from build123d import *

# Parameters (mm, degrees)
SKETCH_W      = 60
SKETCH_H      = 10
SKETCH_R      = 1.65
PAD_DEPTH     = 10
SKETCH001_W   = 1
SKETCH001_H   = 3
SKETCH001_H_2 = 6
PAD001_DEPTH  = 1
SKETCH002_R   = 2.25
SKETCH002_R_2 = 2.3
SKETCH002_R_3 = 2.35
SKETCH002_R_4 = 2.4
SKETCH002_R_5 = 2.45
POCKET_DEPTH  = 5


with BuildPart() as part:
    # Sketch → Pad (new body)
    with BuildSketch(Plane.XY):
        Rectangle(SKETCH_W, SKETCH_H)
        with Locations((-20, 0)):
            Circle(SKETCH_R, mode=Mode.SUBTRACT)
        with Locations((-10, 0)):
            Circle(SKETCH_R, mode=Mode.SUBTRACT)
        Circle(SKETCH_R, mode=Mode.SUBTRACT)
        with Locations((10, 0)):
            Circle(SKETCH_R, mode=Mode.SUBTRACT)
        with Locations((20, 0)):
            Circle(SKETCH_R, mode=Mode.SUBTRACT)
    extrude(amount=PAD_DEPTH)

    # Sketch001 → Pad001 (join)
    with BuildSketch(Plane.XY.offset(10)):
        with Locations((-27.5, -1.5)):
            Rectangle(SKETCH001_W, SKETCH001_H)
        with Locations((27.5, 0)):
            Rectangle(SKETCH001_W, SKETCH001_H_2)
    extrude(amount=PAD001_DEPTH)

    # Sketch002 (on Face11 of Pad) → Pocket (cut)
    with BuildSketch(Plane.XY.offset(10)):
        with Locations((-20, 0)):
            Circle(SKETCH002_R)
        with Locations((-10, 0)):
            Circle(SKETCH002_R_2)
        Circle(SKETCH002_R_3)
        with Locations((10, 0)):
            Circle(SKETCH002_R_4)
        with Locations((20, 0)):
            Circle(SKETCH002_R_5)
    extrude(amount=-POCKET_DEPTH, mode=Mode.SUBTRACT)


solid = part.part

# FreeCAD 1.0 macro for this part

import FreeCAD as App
import Part
import Sketcher


def add_polygon(sketch, points):
    """Adds a closed chain of lines whose ends are joined by coincident constraints."""
    first, n = sketch.GeometryCount, len(points)
    for a, b in zip(points, points[1:] + points[:1]):
        sketch.addGeometry(Part.LineSegment(App.Vector(*a, 0), App.Vector(*b, 0)), False)
    for i in range(n):
        sketch.addConstraint(Sketcher.Constraint("Coincident", first + i, 2, first + (i + 1) % n, 1))

doc = App.newDocument("Part")
body = doc.addObject("PartDesign::Body", "Body")

sketch1 = body.newObject("Sketcher::SketchObject", "Sketch")
sketch1.AttachmentSupport = (doc.getObject("XY_Plane"), [""])
sketch1.MapMode = "FlatFace"
add_polygon(sketch1, [(-30, 5), (-30, -5), (30, -5), (30, 5)])
sketch1.addGeometry(Part.Circle(App.Vector(-20, 0, 0), App.Vector(0, 0, 1), 1.6), False)
sketch1.addGeometry(Part.Circle(App.Vector(-10, 0, 0), App.Vector(0, 0, 1), 1.6), False)
sketch1.addGeometry(Part.Circle(App.Vector(0, 0, 0), App.Vector(0, 0, 1), 1.6), False)
sketch1.addGeometry(Part.Circle(App.Vector(10, 0, 0), App.Vector(0, 0, 1), 1.6), False)
sketch1.addGeometry(Part.Circle(App.Vector(20, 0, 0), App.Vector(0, 0, 1), 1.6), False)
sketch1.addConstraint([
    Sketcher.Constraint("Vertical", 0),
    Sketcher.Constraint("Horizontal", 1),
    Sketcher.Constraint("Vertical", 2),
    Sketcher.Constraint("Horizontal", 3),
    Sketcher.Constraint("Coincident", 6, 3, -1, 1),
    Sketcher.Constraint("Equal", 4, 5),
    Sketcher.Constraint("Equal", 5, 6),
    Sketcher.Constraint("Equal", 6, 7),
    Sketcher.Constraint("Equal", 7, 8),
    Sketcher.Constraint("Symmetric", 5, 3, 7, 3, -1, 1),
    Sketcher.Constraint("Symmetric", 4, 3, 8, 3, -1, 1),
    Sketcher.Constraint("Symmetric", 0, 2, 2, 2, -1, 1),
    Sketcher.Constraint("PointOnObject", 4, 3, -1),
    Sketcher.Constraint("PointOnObject", 5, 3, -1),
    Sketcher.Constraint("Diameter", 4, 3.3),
    Sketcher.Constraint("DistanceX", 1, 1, 1, 2, 60.0),
    Sketcher.Constraint("DistanceY", 0, 2, 0, 1, 10.0),
    Sketcher.Constraint("DistanceX", 4, 3, -1, 1, 20.0),
    Sketcher.Constraint("DistanceX", 5, 3, -1, 1, 10.0),
])
pad1 = body.newObject("PartDesign::Pad", "Pad")
pad1.Profile = sketch1
pad1.Length = 10

sketch2 = body.newObject("Sketcher::SketchObject", "Sketch001")
sketch2.AttachmentSupport = (doc.getObject("XY_Plane"), [""])
sketch2.MapMode = "FlatFace"
sketch2.AttachmentOffset = App.Placement(App.Vector(0, 0, 10), App.Rotation())
add_polygon(sketch2, [(-28, 0), (-28, -3), (-27, -3), (-27, 0)])
add_polygon(sketch2, [(27, 3), (27, -3), (28, -3), (28, 3)])
sketch2.addConstraint([
    Sketcher.Constraint("Vertical", 0),
    Sketcher.Constraint("Horizontal", 1),
    Sketcher.Constraint("Vertical", 2),
    Sketcher.Constraint("Horizontal", 3),
    Sketcher.Constraint("Vertical", 4),
    Sketcher.Constraint("Horizontal", 5),
    Sketcher.Constraint("Vertical", 6),
    Sketcher.Constraint("Horizontal", 7),
    Sketcher.Constraint("Symmetric", 0, 2, 6, 2, -1, 1),
    Sketcher.Constraint("Symmetric", 1, 2, 4, 2, -2),
    Sketcher.Constraint("PointOnObject", 2, 2, -1),
    Sketcher.Constraint("DistanceX", 1, 1, 1, 2, 1.0),
    Sketcher.Constraint("DistanceY", 0, 2, 0, 1, 3.0),
    Sketcher.Constraint("DistanceX", 0, 2, -1, 1, 28.0),
])
pad2 = body.newObject("PartDesign::Pad", "Pad001")
pad2.Profile = sketch2
pad2.Length = 1

sketch3 = body.newObject("Sketcher::SketchObject", "Sketch002")
sketch3.AttachmentSupport = (doc.getObject("XY_Plane"), [""])
sketch3.MapMode = "FlatFace"
sketch3.AttachmentOffset = App.Placement(App.Vector(0, 0, 10), App.Rotation())
sketch3.addGeometry([
    Part.Circle(App.Vector(-20, 0, 0), App.Vector(0, 0, 1), 2.2),
    Part.Circle(App.Vector(-10, 0, 0), App.Vector(0, 0, 1), 2.3),
    Part.Circle(App.Vector(0, 0, 0), App.Vector(0, 0, 1), 2.4),
    Part.Circle(App.Vector(10, 0, 0), App.Vector(0, 0, 1), 2.4),
    Part.Circle(App.Vector(20, 0, 0), App.Vector(0, 0, 1), 2.5),
], False)
sketch3.addConstraint([
    Sketcher.Constraint("Coincident", 2, 3, -1, 1),
    Sketcher.Constraint("Symmetric", 1, 3, 3, 3, -1, 1),
    Sketcher.Constraint("Symmetric", 0, 3, 4, 3, -1, 1),
    Sketcher.Constraint("PointOnObject", 0, 3, -1),
    Sketcher.Constraint("PointOnObject", 1, 3, -1),
    Sketcher.Constraint("Diameter", 0, 4.5),
    Sketcher.Constraint("Diameter", 1, 4.6),
    Sketcher.Constraint("Diameter", 2, 4.7),
    Sketcher.Constraint("Diameter", 3, 4.8),
    Sketcher.Constraint("Diameter", 4, 4.9),
    Sketcher.Constraint("DistanceX", 0, 3, -1, 1, 20.0),
    Sketcher.Constraint("DistanceX", 1, 3, -1, 1, 10.0),
])
pocket1 = body.newObject("PartDesign::Pocket", "Pocket")
pocket1.Profile = sketch3
pocket1.Length = 5

doc.recompute()
